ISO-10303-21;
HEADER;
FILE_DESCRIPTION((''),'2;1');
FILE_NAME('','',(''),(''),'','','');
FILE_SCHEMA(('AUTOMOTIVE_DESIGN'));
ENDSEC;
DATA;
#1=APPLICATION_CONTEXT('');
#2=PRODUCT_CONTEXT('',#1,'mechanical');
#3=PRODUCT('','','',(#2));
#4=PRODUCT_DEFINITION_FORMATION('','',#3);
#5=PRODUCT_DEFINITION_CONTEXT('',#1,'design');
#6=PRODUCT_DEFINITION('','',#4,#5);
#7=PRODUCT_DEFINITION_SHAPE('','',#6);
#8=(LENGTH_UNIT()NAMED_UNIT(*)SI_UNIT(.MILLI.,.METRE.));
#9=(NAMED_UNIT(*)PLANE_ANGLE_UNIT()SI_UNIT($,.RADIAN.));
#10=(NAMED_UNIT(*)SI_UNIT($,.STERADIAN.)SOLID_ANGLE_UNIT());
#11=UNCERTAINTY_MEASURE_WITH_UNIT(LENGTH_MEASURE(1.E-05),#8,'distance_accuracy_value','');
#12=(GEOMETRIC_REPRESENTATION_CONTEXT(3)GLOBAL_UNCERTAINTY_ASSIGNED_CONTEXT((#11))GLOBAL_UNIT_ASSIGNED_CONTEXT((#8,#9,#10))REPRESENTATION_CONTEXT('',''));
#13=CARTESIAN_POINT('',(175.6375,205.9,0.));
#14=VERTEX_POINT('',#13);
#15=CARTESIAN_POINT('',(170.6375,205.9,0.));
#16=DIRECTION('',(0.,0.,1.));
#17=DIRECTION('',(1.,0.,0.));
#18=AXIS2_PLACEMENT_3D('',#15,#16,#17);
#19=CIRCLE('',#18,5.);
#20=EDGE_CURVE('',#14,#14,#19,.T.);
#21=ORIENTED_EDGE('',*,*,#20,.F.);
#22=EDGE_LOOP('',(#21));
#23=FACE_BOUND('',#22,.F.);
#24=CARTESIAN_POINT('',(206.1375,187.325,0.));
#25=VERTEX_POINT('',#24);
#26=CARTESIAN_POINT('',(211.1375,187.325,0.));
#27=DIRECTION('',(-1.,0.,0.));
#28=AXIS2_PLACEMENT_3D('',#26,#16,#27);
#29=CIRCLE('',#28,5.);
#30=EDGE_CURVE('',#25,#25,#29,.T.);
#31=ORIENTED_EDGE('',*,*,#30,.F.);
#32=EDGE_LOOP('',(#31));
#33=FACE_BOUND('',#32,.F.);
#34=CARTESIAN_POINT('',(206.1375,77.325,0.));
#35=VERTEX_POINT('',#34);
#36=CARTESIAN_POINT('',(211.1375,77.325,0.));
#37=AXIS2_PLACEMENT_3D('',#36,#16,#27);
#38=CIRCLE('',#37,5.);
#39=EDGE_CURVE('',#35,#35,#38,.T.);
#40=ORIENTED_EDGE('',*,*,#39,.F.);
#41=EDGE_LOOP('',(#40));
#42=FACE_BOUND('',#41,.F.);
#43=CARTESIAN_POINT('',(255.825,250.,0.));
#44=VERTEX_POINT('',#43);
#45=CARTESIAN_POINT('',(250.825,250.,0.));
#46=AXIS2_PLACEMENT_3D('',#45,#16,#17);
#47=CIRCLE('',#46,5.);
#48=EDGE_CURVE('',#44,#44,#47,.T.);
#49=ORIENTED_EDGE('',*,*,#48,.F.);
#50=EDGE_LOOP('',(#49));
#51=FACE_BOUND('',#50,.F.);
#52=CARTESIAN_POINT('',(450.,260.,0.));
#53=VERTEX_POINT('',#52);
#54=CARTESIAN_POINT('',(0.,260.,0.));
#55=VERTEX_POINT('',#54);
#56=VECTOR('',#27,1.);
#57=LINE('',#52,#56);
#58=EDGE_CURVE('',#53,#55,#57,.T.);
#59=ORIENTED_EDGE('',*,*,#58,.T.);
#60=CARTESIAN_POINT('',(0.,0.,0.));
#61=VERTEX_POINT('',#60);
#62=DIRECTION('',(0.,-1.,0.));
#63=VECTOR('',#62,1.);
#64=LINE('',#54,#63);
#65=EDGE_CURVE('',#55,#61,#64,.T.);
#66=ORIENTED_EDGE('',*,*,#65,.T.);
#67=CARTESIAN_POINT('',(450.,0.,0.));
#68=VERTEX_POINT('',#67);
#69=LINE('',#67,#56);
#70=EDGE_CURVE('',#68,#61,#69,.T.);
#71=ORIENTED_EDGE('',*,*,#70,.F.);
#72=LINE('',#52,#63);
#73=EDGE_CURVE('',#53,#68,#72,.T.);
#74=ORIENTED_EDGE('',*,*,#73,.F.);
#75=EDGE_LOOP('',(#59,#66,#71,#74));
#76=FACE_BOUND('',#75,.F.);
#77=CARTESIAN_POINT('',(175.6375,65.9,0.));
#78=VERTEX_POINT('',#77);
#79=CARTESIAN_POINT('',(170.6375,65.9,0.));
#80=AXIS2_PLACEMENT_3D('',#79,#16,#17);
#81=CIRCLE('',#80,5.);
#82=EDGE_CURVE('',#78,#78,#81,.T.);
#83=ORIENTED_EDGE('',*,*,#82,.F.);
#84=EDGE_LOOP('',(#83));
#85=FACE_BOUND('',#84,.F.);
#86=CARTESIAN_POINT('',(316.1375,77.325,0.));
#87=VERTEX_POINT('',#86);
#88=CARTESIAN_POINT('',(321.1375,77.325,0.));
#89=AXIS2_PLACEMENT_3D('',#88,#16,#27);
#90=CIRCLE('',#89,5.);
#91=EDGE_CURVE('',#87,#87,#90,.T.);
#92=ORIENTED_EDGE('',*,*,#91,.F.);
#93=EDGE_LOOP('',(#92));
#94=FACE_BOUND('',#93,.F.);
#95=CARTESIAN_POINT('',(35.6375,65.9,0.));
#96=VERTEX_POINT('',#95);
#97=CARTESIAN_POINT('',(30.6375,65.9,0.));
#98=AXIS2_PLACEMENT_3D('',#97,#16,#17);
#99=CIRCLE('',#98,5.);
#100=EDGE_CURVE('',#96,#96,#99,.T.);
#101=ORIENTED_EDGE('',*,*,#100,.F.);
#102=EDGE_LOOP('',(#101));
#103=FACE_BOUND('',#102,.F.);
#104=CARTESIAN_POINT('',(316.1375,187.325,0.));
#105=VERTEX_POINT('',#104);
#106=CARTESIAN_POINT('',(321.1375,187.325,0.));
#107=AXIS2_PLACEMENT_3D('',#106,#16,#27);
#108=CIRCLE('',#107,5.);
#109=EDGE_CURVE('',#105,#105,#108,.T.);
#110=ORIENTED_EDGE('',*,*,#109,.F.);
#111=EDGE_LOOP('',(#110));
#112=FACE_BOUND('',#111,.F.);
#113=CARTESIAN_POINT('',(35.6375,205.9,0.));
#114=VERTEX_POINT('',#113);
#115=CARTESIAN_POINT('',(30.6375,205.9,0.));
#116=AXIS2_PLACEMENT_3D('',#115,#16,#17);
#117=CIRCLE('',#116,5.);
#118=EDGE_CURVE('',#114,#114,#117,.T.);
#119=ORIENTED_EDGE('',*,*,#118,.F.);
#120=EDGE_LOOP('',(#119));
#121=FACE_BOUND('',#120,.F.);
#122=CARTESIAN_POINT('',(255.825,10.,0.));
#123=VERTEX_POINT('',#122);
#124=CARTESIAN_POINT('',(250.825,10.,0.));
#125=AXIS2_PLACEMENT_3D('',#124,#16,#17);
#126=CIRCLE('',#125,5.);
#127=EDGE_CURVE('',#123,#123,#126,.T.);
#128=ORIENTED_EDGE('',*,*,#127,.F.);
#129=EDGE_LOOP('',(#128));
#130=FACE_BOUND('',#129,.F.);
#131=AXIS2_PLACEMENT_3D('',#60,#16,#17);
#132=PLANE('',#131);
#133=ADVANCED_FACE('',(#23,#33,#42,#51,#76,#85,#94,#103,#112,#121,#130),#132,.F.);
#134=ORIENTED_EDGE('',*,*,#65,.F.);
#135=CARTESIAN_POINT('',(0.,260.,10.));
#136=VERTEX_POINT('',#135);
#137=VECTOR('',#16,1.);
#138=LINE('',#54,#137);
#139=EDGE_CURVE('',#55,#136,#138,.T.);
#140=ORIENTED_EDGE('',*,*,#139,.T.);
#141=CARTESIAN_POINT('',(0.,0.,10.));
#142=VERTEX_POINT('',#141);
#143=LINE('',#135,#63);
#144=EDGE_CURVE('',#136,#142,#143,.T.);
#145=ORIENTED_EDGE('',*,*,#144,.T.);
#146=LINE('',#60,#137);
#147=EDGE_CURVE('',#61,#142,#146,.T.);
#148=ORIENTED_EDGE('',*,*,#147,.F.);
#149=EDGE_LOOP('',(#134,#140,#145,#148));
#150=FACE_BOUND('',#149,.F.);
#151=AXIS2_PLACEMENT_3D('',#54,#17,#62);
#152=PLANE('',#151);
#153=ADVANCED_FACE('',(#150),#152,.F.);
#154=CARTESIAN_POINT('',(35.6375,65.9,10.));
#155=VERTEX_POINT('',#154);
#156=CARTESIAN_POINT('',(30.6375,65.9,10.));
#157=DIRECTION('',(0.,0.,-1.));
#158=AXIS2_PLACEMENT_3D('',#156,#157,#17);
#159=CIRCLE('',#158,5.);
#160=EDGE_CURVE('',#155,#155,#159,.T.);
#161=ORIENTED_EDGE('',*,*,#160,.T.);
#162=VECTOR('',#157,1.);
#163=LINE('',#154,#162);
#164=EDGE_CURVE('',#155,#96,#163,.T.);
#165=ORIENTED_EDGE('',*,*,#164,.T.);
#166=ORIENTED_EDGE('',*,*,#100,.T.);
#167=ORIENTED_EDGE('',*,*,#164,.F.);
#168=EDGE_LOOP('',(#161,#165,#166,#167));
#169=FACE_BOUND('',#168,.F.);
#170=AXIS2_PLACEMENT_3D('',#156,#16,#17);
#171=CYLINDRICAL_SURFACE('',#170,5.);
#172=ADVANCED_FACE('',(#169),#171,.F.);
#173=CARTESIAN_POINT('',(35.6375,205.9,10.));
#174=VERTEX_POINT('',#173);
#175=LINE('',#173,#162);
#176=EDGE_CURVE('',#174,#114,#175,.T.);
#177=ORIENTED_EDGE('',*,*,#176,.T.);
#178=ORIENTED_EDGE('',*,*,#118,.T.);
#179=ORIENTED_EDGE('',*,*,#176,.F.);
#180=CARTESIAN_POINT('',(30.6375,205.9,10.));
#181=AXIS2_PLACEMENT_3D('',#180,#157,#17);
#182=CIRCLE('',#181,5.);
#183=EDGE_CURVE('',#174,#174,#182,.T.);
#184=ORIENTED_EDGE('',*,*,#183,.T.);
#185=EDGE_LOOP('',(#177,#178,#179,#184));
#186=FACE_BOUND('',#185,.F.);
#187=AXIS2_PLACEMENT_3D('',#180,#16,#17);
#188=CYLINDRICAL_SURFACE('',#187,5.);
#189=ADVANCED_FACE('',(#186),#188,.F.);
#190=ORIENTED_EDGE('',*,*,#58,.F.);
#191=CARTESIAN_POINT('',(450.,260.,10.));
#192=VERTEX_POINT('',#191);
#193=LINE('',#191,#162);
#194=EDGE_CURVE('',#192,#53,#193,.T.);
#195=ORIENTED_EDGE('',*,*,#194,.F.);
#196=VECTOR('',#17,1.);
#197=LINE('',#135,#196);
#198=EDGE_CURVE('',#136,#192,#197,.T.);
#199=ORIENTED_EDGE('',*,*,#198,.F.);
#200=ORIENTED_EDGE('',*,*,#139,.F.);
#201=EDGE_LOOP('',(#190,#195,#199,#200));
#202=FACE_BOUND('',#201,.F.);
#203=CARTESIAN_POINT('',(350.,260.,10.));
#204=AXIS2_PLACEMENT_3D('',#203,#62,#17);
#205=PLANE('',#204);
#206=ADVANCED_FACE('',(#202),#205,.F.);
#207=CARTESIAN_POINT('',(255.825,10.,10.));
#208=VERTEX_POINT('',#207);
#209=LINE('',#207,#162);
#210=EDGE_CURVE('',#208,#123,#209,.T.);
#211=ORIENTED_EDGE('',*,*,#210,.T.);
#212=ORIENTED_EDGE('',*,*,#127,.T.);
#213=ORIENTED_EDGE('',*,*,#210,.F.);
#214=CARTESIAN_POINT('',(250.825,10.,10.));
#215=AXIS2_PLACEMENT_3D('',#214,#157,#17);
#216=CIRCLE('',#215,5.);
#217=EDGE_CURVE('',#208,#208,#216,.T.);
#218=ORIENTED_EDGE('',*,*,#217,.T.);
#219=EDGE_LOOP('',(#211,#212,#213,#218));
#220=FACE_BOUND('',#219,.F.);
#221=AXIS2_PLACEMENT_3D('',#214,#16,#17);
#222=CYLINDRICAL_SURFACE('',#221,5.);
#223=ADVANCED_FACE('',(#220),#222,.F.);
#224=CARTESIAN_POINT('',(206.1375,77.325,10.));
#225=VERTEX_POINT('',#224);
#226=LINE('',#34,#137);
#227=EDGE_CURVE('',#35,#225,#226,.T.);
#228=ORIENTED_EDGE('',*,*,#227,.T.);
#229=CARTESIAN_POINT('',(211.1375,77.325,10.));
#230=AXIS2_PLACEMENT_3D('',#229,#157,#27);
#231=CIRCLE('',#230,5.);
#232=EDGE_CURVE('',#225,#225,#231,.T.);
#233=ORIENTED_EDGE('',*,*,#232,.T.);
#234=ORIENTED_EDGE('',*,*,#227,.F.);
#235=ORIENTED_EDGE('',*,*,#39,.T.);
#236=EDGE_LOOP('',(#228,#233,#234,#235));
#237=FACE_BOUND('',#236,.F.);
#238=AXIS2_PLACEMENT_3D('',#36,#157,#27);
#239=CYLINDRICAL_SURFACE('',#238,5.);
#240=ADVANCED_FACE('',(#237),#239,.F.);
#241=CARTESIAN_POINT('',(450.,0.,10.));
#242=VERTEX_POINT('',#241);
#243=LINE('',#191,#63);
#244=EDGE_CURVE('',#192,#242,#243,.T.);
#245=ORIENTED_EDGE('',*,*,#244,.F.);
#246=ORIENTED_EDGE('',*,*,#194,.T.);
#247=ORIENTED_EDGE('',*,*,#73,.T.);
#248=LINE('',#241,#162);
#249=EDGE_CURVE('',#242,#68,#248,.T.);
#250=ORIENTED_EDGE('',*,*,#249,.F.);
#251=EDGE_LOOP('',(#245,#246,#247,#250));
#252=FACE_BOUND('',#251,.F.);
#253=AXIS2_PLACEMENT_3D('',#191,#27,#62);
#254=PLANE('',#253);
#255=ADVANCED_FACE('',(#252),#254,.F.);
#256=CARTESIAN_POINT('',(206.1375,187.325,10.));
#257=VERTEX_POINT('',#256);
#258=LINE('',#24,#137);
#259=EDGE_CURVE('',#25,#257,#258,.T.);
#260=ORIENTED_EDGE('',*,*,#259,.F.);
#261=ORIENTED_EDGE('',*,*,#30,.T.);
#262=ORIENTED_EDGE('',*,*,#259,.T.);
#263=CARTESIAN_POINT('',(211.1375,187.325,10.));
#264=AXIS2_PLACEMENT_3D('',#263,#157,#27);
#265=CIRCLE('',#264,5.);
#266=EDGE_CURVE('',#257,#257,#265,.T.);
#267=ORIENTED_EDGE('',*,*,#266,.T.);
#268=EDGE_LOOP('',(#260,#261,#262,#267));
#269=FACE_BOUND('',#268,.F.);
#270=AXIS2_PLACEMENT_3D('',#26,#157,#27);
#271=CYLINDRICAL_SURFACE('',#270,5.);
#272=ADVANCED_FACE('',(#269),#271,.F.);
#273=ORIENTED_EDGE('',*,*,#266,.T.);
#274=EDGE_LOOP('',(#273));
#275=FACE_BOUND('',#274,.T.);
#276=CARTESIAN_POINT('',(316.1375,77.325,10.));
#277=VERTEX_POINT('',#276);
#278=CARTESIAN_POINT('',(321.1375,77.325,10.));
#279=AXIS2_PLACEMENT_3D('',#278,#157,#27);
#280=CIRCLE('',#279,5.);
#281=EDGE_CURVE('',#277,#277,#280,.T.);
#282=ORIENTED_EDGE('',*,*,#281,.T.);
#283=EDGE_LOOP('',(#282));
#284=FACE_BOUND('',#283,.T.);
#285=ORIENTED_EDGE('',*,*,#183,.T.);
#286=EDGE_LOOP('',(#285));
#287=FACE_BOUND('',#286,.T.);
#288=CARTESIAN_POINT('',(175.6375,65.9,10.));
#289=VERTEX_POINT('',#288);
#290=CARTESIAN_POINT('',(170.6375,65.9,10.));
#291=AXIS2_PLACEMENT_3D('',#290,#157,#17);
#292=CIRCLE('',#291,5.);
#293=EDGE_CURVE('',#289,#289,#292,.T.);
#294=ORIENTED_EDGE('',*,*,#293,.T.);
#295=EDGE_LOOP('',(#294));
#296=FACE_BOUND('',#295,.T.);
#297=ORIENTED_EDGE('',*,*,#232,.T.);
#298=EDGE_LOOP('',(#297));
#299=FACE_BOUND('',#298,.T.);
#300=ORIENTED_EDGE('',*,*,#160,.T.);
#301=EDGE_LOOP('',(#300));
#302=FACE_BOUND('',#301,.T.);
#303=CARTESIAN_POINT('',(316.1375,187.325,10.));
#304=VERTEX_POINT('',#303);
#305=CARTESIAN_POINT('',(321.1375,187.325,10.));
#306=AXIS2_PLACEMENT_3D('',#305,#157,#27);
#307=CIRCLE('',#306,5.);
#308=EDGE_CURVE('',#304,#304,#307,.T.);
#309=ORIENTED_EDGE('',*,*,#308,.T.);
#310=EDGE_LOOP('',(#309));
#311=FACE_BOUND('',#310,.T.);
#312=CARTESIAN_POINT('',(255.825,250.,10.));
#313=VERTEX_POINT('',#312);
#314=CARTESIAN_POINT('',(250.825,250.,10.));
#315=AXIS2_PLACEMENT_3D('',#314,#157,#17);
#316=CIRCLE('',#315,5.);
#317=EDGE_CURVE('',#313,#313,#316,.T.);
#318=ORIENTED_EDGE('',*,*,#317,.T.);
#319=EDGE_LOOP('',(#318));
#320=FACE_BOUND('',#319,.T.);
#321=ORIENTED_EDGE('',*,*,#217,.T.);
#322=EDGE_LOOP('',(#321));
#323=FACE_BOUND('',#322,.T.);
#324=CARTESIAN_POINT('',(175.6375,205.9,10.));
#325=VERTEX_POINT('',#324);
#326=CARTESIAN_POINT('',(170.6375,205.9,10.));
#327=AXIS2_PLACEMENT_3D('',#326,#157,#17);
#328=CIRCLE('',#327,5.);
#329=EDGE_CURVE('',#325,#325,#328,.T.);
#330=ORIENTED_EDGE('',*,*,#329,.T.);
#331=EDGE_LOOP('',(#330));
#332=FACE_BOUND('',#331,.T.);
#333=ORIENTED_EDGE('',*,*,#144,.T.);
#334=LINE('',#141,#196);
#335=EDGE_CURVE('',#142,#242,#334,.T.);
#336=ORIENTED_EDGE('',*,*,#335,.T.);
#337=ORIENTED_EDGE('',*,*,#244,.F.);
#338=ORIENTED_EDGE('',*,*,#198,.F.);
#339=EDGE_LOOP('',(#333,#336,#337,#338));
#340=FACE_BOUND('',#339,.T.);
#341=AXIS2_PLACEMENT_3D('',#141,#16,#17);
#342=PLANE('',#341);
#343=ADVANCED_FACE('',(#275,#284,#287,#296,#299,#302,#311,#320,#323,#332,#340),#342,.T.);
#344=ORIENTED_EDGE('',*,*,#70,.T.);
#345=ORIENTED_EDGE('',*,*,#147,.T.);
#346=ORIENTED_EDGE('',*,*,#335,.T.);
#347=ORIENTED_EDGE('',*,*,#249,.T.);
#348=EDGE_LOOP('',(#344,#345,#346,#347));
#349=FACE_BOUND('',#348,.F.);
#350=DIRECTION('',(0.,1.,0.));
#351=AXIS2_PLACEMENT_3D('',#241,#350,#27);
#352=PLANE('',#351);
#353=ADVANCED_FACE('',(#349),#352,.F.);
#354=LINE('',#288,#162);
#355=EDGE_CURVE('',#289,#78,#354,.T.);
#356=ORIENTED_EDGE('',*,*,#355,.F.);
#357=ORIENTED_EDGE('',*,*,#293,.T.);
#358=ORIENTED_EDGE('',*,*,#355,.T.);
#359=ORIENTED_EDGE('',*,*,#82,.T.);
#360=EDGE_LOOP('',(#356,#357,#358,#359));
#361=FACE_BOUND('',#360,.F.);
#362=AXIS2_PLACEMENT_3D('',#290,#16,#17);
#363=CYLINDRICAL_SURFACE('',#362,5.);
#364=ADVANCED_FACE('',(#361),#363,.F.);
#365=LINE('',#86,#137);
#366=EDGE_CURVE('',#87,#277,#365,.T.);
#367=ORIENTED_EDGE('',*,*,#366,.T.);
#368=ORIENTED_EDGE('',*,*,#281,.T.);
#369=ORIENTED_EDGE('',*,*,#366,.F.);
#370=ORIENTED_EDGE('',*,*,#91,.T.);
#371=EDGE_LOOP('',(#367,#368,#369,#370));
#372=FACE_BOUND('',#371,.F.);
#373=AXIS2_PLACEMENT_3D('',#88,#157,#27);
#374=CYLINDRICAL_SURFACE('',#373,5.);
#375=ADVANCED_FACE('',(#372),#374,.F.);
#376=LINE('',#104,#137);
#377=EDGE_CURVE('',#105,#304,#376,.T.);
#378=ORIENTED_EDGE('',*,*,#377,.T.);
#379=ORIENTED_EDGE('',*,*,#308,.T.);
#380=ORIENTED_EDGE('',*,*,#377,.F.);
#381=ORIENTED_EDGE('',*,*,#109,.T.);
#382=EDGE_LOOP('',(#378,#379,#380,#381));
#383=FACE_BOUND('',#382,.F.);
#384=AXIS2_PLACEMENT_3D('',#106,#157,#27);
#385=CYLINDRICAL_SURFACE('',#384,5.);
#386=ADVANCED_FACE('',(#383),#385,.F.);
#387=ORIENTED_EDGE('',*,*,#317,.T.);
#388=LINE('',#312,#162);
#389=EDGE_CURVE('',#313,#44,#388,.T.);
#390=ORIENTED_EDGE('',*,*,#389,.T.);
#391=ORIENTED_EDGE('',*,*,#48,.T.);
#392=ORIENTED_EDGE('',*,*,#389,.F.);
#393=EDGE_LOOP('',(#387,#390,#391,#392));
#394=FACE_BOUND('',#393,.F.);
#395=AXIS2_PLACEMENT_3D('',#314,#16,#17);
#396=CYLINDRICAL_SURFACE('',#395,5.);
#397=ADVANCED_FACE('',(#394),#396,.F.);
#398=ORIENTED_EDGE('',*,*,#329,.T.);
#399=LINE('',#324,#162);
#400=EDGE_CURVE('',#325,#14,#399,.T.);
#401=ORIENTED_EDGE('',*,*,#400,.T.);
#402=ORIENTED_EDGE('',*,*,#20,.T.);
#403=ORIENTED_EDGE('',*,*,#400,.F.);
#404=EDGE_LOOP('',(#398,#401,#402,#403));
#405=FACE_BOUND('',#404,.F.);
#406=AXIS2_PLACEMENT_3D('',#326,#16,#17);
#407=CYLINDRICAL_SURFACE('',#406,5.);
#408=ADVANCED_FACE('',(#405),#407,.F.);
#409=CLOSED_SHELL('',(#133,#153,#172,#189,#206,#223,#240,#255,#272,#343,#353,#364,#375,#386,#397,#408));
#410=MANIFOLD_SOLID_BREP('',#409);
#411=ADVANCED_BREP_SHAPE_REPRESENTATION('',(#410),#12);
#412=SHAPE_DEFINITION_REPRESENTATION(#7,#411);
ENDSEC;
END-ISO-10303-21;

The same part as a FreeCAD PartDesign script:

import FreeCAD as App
import Part
import Sketcher
Q = App.Units.Quantity


def add_polygon(sketch, points):
    """Adds a closed chain of lines whose ends are joined by coincident constraints."""
    first, n = sketch.GeometryCount, len(points)
    for a, b in zip(points, points[1:] + points[:1]):
        sketch.addGeometry(Part.LineSegment(App.Vector(*a, 0), App.Vector(*b, 0)), False)
    for i in range(n):
        sketch.addConstraint(Sketcher.Constraint("Coincident", first + i, 2, first + (i + 1) % n, 1))

doc = App.newDocument("Part")
body = doc.addObject("PartDesign::Body", "Body")

sketch1 = body.newObject("Sketcher::SketchObject", "Sketch")
sketch1.AttachmentSupport = (doc.getObject("XY_Plane"), [""])
sketch1.MapMode = "FlatFace"
add_polygon(sketch1, [(0, 260), (0, 0), (350, 0), (350, 260)])
sketch1.addConstraint([
    Sketcher.Constraint("Vertical", 0),
    Sketcher.Constraint("Horizontal", 1),
    Sketcher.Constraint("Vertical", 2),
    Sketcher.Constraint("Horizontal", 3),
    Sketcher.Constraint("Coincident", 0, 2, -1, 1),
    Sketcher.Constraint("DistanceX", 1, 1, 1, 2, Q("350 mm")),
    Sketcher.Constraint("DistanceY", 0, 2, 0, 1, Q("260 mm")),
])
pad1 = body.newObject("PartDesign::Pad", "Pad")
pad1.Profile = sketch1
pad1.Length = 10

sketch2 = body.newObject("Sketcher::SketchObject", "Sketch001")
sketch2.AttachmentSupport = (doc.getObject("XY_Plane"), [""])
sketch2.MapMode = "FlatFace"
sketch2.AttachmentOffset = App.Placement(App.Vector(0, 0, 10), App.Rotation())
sketch2.addGeometry([
    Part.Circle(App.Vector(31, 206, 0), App.Vector(0, 0, 1), 5),
    Part.Circle(App.Vector(171, 206, 0), App.Vector(0, 0, 1), 5),
    Part.Circle(App.Vector(31, 66, 0), App.Vector(0, 0, 1), 5),
    Part.Circle(App.Vector(171, 66, 0), App.Vector(0, 0, 1), 5),
], False)
sketch2.addConstraint([
    Sketcher.Constraint("Equal", 0, 1),
    Sketcher.Constraint("Equal", 1, 2),
    Sketcher.Constraint("Equal", 2, 3),
    Sketcher.Constraint("Horizontal", 0, 3, 1, 3),
    Sketcher.Constraint("Horizontal", 2, 3, 3, 3),
    Sketcher.Constraint("Vertical", 0, 3, 2, 3),
    Sketcher.Constraint("Vertical", 1, 3, 3, 3),
    Sketcher.Constraint("Diameter", 0, Q("10 mm")),
    Sketcher.Constraint("DistanceX", 0, 3, 1, 3, Q("140 mm")),
    Sketcher.Constraint("DistanceY", 2, 3, 0, 3, Q("140 mm")),
    Sketcher.Constraint("DistanceY", -1, 1, 0, 3, Q("205.9 mm")),
    Sketcher.Constraint("DistanceX", -1, 1, 0, 3, Q("30.6375 mm")),
])
pocket1 = body.newObject("PartDesign::Pocket", "Pocket")
pocket1.Profile = sketch2
pocket1.Type = "ThroughAll"
pocket1.Midplane = True

sketch3 = body.newObject("Sketcher::SketchObject", "Sketch002")
sketch3.AttachmentSupport = (doc.getObject("XY_Plane"), [""])
sketch3.MapMode = "FlatFace"
sketch3.addGeometry([
    Part.Circle(App.Vector(321, 187, 0), App.Vector(0, 0, 1), 5),
    Part.Circle(App.Vector(211, 187, 0), App.Vector(0, 0, 1), 5),
    Part.Circle(App.Vector(321, 77, 0), App.Vector(0, 0, 1), 5),
    Part.Circle(App.Vector(211, 77, 0), App.Vector(0, 0, 1), 5),
], False)
sketch3.addConstraint([
    Sketcher.Constraint("Equal", 0, 1),
    Sketcher.Constraint("Equal", 1, 2),
    Sketcher.Constraint("Equal", 2, 3),
    Sketcher.Constraint("Horizontal", 0, 3, 1, 3),
    Sketcher.Constraint("Horizontal", 2, 3, 3, 3),
    Sketcher.Constraint("Vertical", 0, 3, 2, 3),
    Sketcher.Constraint("Vertical", 1, 3, 3, 3),
    Sketcher.Constraint("Diameter", 0, Q("10 mm")),
    Sketcher.Constraint("DistanceX", 1, 3, 0, 3, Q("110 mm")),
    Sketcher.Constraint("DistanceY", 2, 3, 0, 3, Q("110 mm")),
    Sketcher.Constraint("DistanceY", -1, 1, 0, 3, Q("187.325 mm")),
    Sketcher.Constraint("DistanceX", -1, 1, 0, 3, Q("321.1375 mm")),
])
pocket2 = body.newObject("PartDesign::Pocket", "Pocket001")
pocket2.Profile = sketch3
pocket2.Type = "ThroughAll"
pocket2.Reversed = True

sketch4 = body.newObject("Sketcher::SketchObject", "Sketch003")
sketch4.AttachmentSupport = (doc.getObject("XY_Plane"), [""])
sketch4.MapMode = "FlatFace"
sketch4.AttachmentOffset = App.Placement(App.Vector(0, 0, 10), App.Rotation())
add_polygon(sketch4, [(450, 260), (350, 260), (350, 0), (450, 0)])
sketch4.addConstraint([
    Sketcher.Constraint("Horizontal", 0),
    Sketcher.Constraint("Vertical", 1),
    Sketcher.Constraint("Horizontal", 2),
    Sketcher.Constraint("Vertical", 3),
    Sketcher.Constraint("PointOnObject", 1, 2, -1),
    Sketcher.Constraint("DistanceX", 0, 2, 0, 1, Q("100 mm")),
    Sketcher.Constraint("DistanceY", 1, 2, 1, 1, Q("260 mm")),
    Sketcher.Constraint("DistanceX", -1, 1, 0, 2, Q("350 mm")),
])
pad2 = body.newObject("PartDesign::Pad", "Pad001")
pad2.Profile = sketch4
pad2.Length = 10
pad2.Reversed = True

sketch5 = body.newObject("Sketcher::SketchObject", "Sketch004")
sketch5.AttachmentSupport = (doc.getObject("XY_Plane"), [""])
sketch5.MapMode = "FlatFace"
sketch5.AttachmentOffset = App.Placement(App.Vector(0, 0, 10), App.Rotation())
sketch5.addGeometry([
    Part.Circle(App.Vector(251, 10, 0), App.Vector(0, 0, 1), 5),
    Part.Circle(App.Vector(251, 250, 0), App.Vector(0, 0, 1), 5),
], False)
sketch5.addConstraint([
    Sketcher.Constraint("Equal", 0, 1),
    Sketcher.Constraint("Vertical", 0, 3, 1, 3),
    Sketcher.Constraint("Diameter", 0, Q("10 mm")),
    Sketcher.Constraint("DistanceY", -1, 1, 0, 3, Q("10 mm")),
    Sketcher.Constraint("DistanceY", 0, 3, 1, 3, Q("240 mm")),
    Sketcher.Constraint("DistanceX", -1, 1, 0, 3, Q("250.825 mm")),
])
pocket3 = body.newObject("PartDesign::Pocket", "Pocket002")
pocket3.Profile = sketch5
pocket3.Length = 10

doc.recompute()
